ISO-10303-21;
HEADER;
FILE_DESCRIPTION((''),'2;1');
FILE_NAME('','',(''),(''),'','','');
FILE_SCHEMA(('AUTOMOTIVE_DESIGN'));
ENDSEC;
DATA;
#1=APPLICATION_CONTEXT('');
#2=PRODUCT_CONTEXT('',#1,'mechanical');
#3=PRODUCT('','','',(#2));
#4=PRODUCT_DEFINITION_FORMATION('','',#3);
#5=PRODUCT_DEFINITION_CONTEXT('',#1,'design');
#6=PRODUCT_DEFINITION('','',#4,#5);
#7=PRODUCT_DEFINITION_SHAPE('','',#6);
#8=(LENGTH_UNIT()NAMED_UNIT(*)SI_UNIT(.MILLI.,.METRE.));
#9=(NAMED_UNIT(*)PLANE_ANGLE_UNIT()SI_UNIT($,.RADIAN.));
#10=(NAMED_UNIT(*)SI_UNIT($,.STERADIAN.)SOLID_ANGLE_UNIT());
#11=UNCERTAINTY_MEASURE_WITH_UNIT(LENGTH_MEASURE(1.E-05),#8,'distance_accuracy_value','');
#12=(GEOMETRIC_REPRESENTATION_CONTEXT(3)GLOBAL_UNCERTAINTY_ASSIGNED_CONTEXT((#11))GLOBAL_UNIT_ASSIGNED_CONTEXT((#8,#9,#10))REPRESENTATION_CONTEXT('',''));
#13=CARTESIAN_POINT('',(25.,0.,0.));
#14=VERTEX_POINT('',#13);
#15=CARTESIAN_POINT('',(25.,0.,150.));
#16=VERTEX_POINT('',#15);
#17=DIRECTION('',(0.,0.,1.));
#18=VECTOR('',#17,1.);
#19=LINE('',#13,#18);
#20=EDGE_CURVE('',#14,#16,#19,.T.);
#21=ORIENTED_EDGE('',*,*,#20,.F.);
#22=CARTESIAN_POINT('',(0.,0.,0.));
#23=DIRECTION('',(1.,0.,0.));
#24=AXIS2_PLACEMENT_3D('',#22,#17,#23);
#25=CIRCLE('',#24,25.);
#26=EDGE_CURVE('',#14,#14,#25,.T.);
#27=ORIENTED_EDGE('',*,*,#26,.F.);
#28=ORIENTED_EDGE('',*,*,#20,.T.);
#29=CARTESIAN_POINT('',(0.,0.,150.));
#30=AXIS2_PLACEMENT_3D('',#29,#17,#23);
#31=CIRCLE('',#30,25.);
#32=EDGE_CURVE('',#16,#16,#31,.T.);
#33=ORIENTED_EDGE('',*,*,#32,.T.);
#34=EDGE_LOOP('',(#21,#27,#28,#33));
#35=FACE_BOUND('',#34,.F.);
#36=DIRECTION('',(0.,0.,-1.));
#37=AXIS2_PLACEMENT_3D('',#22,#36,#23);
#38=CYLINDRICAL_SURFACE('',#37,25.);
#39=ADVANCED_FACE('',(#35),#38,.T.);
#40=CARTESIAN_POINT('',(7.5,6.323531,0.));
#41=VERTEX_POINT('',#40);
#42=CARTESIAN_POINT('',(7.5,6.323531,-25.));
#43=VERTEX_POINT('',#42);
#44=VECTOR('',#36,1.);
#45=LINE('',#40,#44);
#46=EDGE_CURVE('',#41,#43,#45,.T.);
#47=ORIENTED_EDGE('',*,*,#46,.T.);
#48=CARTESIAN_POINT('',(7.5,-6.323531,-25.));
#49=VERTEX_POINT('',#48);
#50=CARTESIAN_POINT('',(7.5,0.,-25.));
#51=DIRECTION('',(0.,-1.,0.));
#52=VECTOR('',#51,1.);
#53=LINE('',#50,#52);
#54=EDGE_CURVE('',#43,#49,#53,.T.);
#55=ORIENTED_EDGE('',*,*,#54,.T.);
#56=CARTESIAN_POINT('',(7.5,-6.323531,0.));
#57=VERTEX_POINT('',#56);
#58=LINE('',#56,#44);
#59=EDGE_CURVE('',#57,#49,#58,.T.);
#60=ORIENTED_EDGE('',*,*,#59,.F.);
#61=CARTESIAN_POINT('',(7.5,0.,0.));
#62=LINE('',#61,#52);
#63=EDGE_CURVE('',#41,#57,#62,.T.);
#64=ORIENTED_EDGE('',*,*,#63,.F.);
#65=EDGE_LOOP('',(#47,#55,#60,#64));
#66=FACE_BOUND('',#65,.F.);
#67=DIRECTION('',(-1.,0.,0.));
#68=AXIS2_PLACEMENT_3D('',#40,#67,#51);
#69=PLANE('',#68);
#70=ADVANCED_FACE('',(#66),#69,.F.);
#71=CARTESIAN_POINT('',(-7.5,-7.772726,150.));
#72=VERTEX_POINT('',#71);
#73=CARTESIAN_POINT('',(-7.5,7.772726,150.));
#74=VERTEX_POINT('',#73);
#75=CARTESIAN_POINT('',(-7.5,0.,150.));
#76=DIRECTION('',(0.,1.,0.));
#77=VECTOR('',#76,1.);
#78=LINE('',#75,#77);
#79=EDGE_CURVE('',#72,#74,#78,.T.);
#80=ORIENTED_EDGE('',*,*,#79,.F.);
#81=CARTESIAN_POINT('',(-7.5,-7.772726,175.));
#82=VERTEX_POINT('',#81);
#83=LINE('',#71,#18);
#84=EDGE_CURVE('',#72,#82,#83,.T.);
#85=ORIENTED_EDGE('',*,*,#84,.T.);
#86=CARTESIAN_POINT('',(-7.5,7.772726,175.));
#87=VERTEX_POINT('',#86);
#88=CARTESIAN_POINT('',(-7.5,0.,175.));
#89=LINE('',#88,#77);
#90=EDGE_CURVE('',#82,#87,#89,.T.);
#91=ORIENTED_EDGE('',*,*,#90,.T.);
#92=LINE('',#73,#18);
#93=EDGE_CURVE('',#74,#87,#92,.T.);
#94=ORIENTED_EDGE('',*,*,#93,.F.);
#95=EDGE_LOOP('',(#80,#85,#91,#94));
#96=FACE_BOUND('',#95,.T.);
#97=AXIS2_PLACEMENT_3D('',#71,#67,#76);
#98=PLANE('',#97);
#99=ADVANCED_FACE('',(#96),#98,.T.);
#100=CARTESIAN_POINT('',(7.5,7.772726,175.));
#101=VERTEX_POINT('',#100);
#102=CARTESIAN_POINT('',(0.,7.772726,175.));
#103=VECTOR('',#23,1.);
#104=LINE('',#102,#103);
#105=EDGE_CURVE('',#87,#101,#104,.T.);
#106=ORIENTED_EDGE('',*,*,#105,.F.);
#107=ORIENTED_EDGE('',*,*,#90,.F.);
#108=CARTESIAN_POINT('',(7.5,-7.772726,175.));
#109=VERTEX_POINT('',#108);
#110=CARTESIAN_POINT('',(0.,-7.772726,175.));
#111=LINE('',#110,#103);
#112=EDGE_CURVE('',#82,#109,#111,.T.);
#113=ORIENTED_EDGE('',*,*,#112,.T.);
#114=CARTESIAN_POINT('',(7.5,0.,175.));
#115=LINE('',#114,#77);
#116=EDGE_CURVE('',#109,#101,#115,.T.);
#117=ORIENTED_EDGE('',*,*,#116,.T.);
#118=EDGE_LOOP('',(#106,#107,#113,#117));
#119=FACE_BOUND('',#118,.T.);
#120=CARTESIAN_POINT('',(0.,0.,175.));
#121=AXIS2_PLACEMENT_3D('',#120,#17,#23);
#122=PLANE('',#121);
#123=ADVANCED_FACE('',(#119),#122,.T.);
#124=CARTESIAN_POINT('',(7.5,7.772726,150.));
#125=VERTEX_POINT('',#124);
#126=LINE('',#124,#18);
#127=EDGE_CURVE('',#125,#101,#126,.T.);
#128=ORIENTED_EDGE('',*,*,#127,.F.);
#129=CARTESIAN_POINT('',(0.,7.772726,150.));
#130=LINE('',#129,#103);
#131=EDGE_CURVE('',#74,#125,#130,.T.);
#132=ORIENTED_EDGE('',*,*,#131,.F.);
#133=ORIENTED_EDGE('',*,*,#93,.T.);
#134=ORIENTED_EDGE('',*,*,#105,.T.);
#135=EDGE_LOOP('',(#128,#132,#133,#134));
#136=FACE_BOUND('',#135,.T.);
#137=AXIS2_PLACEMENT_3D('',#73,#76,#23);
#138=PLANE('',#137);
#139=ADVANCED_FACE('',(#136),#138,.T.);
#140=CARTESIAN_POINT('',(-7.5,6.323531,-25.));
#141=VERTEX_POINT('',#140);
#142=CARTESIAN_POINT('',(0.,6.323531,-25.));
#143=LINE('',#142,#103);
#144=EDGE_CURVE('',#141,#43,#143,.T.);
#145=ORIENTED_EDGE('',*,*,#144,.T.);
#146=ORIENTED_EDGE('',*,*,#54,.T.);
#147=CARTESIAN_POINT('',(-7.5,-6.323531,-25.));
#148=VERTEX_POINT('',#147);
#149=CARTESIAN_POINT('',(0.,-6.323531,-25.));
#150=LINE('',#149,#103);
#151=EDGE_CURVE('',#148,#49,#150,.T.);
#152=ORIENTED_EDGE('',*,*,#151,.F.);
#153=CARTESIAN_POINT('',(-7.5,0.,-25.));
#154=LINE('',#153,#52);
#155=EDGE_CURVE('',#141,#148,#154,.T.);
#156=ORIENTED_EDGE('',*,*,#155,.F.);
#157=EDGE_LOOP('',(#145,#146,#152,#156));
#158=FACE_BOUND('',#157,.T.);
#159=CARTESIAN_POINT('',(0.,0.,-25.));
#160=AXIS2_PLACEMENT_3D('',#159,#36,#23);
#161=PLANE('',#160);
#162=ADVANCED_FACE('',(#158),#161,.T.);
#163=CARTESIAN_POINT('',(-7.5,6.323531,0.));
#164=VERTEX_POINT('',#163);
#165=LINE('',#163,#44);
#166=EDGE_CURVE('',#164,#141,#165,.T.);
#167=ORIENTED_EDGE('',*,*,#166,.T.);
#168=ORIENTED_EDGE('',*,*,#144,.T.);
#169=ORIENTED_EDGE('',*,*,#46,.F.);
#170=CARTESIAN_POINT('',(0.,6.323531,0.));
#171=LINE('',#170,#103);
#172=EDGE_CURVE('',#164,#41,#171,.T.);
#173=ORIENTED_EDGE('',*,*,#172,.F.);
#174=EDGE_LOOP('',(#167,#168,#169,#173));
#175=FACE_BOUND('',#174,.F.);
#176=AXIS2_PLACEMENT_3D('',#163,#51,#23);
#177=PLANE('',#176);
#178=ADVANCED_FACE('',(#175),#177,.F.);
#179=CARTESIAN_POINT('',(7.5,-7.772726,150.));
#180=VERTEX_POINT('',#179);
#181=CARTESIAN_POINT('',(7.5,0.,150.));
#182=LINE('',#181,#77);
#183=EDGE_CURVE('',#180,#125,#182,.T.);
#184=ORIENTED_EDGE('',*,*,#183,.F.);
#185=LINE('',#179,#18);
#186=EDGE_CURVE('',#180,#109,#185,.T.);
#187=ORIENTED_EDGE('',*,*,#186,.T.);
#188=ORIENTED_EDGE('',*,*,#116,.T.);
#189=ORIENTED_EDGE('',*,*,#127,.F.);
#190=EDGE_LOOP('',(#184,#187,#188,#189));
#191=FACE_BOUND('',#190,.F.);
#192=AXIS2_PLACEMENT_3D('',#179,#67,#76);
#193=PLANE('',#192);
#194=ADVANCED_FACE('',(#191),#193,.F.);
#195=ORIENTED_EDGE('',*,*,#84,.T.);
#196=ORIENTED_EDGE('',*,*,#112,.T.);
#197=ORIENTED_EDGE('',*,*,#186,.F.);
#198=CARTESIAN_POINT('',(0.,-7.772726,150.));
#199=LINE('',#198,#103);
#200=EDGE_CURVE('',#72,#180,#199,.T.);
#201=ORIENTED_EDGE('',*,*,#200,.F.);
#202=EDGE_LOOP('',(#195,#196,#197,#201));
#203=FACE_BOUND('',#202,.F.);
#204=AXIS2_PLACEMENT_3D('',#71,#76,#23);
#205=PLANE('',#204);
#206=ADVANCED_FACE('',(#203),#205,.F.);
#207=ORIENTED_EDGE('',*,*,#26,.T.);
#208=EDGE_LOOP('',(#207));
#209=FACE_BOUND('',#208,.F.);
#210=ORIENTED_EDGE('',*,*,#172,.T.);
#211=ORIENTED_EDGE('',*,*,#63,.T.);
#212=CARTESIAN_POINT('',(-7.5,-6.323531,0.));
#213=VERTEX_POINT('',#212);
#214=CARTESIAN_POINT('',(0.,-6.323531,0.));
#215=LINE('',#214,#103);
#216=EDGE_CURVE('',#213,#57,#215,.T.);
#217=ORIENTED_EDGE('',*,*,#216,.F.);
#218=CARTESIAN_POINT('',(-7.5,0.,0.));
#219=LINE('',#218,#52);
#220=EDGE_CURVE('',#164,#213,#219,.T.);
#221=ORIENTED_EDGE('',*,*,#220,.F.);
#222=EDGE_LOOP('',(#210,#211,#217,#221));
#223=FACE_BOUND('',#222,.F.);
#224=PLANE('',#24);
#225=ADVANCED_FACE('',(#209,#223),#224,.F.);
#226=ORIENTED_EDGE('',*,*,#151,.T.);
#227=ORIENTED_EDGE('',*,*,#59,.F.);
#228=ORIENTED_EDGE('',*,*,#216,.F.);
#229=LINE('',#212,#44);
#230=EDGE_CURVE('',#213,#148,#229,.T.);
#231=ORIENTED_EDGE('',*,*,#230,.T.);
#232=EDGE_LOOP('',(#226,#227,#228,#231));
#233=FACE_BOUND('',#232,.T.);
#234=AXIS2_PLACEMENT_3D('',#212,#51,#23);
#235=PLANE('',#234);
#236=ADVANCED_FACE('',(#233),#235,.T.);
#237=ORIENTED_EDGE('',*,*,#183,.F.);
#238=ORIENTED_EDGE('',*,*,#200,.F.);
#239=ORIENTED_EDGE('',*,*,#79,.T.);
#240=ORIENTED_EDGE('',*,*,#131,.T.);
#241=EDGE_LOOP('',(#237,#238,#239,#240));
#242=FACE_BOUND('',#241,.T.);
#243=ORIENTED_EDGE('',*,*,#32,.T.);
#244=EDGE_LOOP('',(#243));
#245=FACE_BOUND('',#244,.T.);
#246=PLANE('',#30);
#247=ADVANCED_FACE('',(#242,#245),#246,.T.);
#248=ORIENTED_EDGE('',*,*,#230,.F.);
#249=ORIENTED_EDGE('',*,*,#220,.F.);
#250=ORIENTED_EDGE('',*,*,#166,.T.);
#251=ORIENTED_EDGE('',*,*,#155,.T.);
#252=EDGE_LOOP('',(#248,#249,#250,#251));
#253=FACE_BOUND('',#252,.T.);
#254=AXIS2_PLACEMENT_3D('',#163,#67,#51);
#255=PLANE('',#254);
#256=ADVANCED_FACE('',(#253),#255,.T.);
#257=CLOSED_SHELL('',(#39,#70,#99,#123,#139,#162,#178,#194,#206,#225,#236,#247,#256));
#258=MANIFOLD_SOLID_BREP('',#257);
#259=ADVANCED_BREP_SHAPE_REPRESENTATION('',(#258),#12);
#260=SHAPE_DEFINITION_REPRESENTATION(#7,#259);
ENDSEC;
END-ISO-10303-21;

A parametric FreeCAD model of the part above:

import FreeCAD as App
import Part
import Sketcher

doc = App.newDocument("Part")
params = doc.addObject("Spreadsheet::Sheet", "Params")
for row, (alias, value) in enumerate([
    ("sketch1_diameter", "50 mm"),
    ("pad1_length", "150 mm"),
    ("sketch2_width", "15 mm"),
    ("pad2_length", "25 mm"),
    ("sketch3_width", "15 mm"),
    ("pad3_length", "25 mm"),
], start=1):
    params.set(f"A{row}", alias)
    params.set(f"B{row}", "=" + value)
    params.setAlias(f"B{row}", alias)

body = doc.addObject("PartDesign::Body", "Body")

# Sketch on XY plane
sketch1 = body.newObject("Sketcher::SketchObject", "Sketch")
sketch1.AttachmentSupport = (doc.getObject("XY_Plane"), [""])
sketch1.MapMode = "FlatFace"
sketch1.addGeometry(Part.Circle(App.Vector(0, 0, 0), App.Vector(0, 0, 1), 25), False)
sketch1.addConstraint(Sketcher.Constraint("Coincident", 0, 3, -1, 1))
sketch1.addConstraint(Sketcher.Constraint("Diameter", 0, 50.0))
sketch1.setExpression("Constraints[1]", "Params.sketch1_diameter")
pad1 = body.newObject("PartDesign::Pad", "Pad")
pad1.Profile = sketch1
pad1.setExpression("Length", "Params.pad1_length")

# Sketch on XY plane
sketch2 = body.newObject("Sketcher::SketchObject", "Sketch001")
sketch2.AttachmentSupport = (doc.getObject("XY_Plane"), [""])
sketch2.MapMode = "FlatFace"
sketch2.AttachmentOffset = App.Placement(App.Vector(0, 0, 150), App.Rotation())
sketch2.addGeometry(Part.LineSegment(App.Vector(-8, 8, 0), App.Vector(-8, -8, 0)), False)
sketch2.addGeometry(Part.LineSegment(App.Vector(-8, -8, 0), App.Vector(8, -8, 0)), False)
sketch2.addGeometry(Part.LineSegment(App.Vector(8, -8, 0), App.Vector(8, 8, 0)), False)
sketch2.addGeometry(Part.LineSegment(App.Vector(8, 8, 0), App.Vector(-8, 8, 0)), False)
sketch2.addConstraint(Sketcher.Constraint("Coincident", 0, 2, 1, 1))
sketch2.addConstraint(Sketcher.Constraint("Coincident", 1, 2, 2, 1))
sketch2.addConstraint(Sketcher.Constraint("Coincident", 2, 2, 3, 1))
sketch2.addConstraint(Sketcher.Constraint("Coincident", 3, 2, 0, 1))
sketch2.addConstraint(Sketcher.Constraint("Vertical", 0))
sketch2.addConstraint(Sketcher.Constraint("Horizontal", 1))
sketch2.addConstraint(Sketcher.Constraint("Vertical", 2))
sketch2.addConstraint(Sketcher.Constraint("Horizontal", 3))
sketch2.addConstraint(Sketcher.Constraint("Symmetric", 0, 2, 2, 2, -1, 1))
sketch2.addConstraint(Sketcher.Constraint("DistanceX", 1, 1, 1, 2, 15.0))
sketch2.addConstraint(Sketcher.Constraint("DistanceY", 0, 2, 0, 1, 15.545452))
sketch2.setExpression("Constraints[9]", "Params.sketch2_width")
pad2 = body.newObject("PartDesign::Pad", "Pad001")
pad2.Profile = sketch2
pad2.setExpression("Length", "Params.pad2_length")

# Sketch on XY plane
sketch3 = body.newObject("Sketcher::SketchObject", "Sketch002")
sketch3.AttachmentSupport = (doc.getObject("XY_Plane"), [""])
sketch3.MapMode = "FlatFace"
sketch3.addGeometry(Part.LineSegment(App.Vector(-8, -6, 0), App.Vector(-8, 6, 0)), False)
sketch3.addGeometry(Part.LineSegment(App.Vector(-8, 6, 0), App.Vector(8, 6, 0)), False)
sketch3.addGeometry(Part.LineSegment(App.Vector(8, 6, 0), App.Vector(8, -6, 0)), False)
sketch3.addGeometry(Part.LineSegment(App.Vector(8, -6, 0), App.Vector(-8, -6, 0)), False)
sketch3.addConstraint(Sketcher.Constraint("Coincident", 0, 2, 1, 1))
sketch3.addConstraint(Sketcher.Constraint("Coincident", 1, 2, 2, 1))
sketch3.addConstraint(Sketcher.Constraint("Coincident", 2, 2, 3, 1))
sketch3.addConstraint(Sketcher.Constraint("Coincident", 3, 2, 0, 1))
sketch3.addConstraint(Sketcher.Constraint("Vertical", 0))
sketch3.addConstraint(Sketcher.Constraint("Horizontal", 1))
sketch3.addConstraint(Sketcher.Constraint("Vertical", 2))
sketch3.addConstraint(Sketcher.Constraint("Horizontal", 3))
sketch3.addConstraint(Sketcher.Constraint("Symmetric", 0, 2, 2, 2, -1, 1))
sketch3.addConstraint(Sketcher.Constraint("DistanceX", 1, 1, 1, 2, 15.0))
sketch3.addConstraint(Sketcher.Constraint("DistanceY", 0, 1, 0, 2, 12.647062))
sketch3.setExpression("Constraints[9]", "Params.sketch3_width")
pad3 = body.newObject("PartDesign::Pad", "Pad002")
pad3.Profile = sketch3
pad3.setExpression("Length", "Params.pad3_length")
pad3.Reversed = True

doc.recompute()
